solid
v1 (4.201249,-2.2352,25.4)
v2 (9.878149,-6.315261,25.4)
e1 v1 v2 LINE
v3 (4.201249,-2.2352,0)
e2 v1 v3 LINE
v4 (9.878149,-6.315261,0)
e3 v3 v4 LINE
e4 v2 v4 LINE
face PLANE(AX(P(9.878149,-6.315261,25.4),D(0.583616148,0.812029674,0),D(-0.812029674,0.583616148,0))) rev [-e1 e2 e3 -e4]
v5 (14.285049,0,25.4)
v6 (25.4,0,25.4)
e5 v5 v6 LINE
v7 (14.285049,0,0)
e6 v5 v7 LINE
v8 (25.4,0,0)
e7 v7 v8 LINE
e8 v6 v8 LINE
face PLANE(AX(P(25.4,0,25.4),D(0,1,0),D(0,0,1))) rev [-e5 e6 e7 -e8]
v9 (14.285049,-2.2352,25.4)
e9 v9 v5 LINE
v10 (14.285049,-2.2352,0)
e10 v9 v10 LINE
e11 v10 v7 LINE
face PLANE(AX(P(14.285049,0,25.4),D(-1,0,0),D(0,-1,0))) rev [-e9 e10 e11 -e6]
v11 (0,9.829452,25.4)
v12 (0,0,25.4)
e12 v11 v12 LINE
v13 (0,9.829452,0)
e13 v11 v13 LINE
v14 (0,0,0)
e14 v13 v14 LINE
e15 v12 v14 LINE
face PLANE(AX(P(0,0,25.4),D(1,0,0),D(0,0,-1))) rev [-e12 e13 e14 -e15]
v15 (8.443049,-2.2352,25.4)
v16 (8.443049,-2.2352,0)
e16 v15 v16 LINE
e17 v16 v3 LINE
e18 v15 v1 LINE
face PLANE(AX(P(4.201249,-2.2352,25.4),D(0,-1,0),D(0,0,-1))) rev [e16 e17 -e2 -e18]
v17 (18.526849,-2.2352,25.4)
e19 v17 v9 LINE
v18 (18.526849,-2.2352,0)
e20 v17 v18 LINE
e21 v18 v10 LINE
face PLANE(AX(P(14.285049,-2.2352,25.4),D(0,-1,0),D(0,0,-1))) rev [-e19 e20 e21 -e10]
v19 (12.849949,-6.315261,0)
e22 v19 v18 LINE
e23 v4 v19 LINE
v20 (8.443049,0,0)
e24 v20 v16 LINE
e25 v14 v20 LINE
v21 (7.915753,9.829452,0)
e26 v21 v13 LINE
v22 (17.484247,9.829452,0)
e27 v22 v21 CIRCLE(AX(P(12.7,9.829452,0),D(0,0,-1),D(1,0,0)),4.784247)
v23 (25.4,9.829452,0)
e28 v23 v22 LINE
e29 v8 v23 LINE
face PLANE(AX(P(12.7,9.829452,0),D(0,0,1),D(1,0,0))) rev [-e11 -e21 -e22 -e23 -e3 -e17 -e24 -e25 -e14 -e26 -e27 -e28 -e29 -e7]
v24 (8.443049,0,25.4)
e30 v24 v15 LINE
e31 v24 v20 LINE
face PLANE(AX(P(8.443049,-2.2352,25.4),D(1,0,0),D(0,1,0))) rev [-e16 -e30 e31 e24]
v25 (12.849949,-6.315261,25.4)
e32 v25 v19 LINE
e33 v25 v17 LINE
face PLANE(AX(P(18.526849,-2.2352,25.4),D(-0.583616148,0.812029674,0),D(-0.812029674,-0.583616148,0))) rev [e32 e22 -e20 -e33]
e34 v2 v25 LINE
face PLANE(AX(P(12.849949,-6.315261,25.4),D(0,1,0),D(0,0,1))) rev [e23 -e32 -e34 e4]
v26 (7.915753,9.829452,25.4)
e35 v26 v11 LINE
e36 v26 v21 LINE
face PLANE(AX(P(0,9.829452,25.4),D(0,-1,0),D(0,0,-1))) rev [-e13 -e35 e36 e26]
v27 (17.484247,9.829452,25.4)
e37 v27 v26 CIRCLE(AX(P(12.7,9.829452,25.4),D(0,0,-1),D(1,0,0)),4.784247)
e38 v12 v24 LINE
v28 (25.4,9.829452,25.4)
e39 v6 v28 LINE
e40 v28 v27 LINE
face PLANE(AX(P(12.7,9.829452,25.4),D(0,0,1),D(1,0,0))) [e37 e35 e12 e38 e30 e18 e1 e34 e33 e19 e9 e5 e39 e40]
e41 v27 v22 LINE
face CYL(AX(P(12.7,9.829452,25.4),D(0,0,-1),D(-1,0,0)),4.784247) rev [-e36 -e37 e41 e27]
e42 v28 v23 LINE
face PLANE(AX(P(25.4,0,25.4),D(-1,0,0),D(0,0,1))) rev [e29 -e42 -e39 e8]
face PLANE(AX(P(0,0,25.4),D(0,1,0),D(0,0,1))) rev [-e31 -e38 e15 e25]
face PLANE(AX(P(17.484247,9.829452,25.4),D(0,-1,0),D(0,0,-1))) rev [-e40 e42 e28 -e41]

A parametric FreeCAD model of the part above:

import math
import FreeCAD as App
import Part
import Sketcher

V = App.Vector
Q = App.Units.Quantity

doc = App.newDocument("Part")
params = doc.addObject("Spreadsheet::Sheet", "Params")
for row, (alias, value) in enumerate([
    ("sketch1_width", "0.167 in"),
    ("sketch1_width2", "0.117 in"),
    ("sketch1_height", "0.088 in"),
    ("pad1_length", "1 in"),
], start=1):
    params.set(f"A{row}", alias)
    params.set(f"B{row}", "=" + value)
    params.setAlias(f"B{row}", alias)

body = doc.addObject("PartDesign::Body", "Body")

sketch1 = body.newObject("Sketcher::SketchObject", "Sketch")
sketch1.AttachmentSupport = (doc.getObject("XY_Plane"), [""])
sketch1.MapMode = "FlatFace"
sketch1.addGeometry(Part.LineSegment(V(0, 0, 0), V(8.4, 0, 0)), False)
sketch1.addGeometry(Part.LineSegment(V(8.4, 0, 0), V(8.4, -2.2, 0)), False)
sketch1.addGeometry(Part.LineSegment(V(8.4, -2.2, 0), V(4.2, -2.2, 0)), False)
sketch1.addGeometry(Part.LineSegment(V(4.2, -2.2, 0), V(9.9, -6.3, 0)), False)
sketch1.addGeometry(Part.LineSegment(V(9.9, -6.3, 0), V(12.8, -6.3, 0)), False)
sketch1.addGeometry(Part.LineSegment(V(12.8, -6.3, 0), V(18.5, -2.2, 0)), False)
sketch1.addGeometry(Part.LineSegment(V(18.5, -2.2, 0), V(14.3, -2.2, 0)), False)
sketch1.addGeometry(Part.LineSegment(V(14.3, -2.2, 0), V(14.3, 0, 0)), False)
sketch1.addGeometry(Part.LineSegment(V(14.3, 0, 0), V(25.4, 0, 0)), False)
sketch1.addGeometry(Part.LineSegment(V(25.4, 0, 0), V(25.4, 9.8, 0)), False)
sketch1.addGeometry(Part.LineSegment(V(25.4, 9.8, 0), V(17.5, 9.8, 0)), False)
sketch1.addGeometry(Part.ArcOfCircle(Part.Circle(V(12.7, 9.8, 0), V(0, 0, 1), 4.8), math.radians(180), math.radians(360)), False)
sketch1.addGeometry(Part.LineSegment(V(7.9, 9.8, 0), V(0, 9.8, 0)), False)
sketch1.addGeometry(Part.LineSegment(V(0, 9.8, 0), V(0, 0, 0)), False)
sketch1.addConstraint(Sketcher.Constraint("Coincident", 0, 2, 1, 1))
sketch1.addConstraint(Sketcher.Constraint("Coincident", 1, 2, 2, 1))
sketch1.addConstraint(Sketcher.Constraint("Coincident", 2, 2, 3, 1))
sketch1.addConstraint(Sketcher.Constraint("Coincident", 3, 2, 4, 1))
sketch1.addConstraint(Sketcher.Constraint("Coincident", 4, 2, 5, 1))
sketch1.addConstraint(Sketcher.Constraint("Coincident", 5, 2, 6, 1))
sketch1.addConstraint(Sketcher.Constraint("Coincident", 6, 2, 7, 1))
sketch1.addConstraint(Sketcher.Constraint("Coincident", 7, 2, 8, 1))
sketch1.addConstraint(Sketcher.Constraint("Coincident", 8, 2, 9, 1))
sketch1.addConstraint(Sketcher.Constraint("Coincident", 9, 2, 10, 1))
sketch1.addConstraint(Sketcher.Constraint("Coincident", 10, 2, 11, 2))
sketch1.addConstraint(Sketcher.Constraint("Coincident", 11, 1, 12, 1))
sketch1.addConstraint(Sketcher.Constraint("Coincident", 12, 2, 13, 1))
sketch1.addConstraint(Sketcher.Constraint("Coincident", 13, 2, 0, 1))
sketch1.addConstraint(Sketcher.Constraint("Horizontal", 0))
sketch1.addConstraint(Sketcher.Constraint("Vertical", 1))
sketch1.addConstraint(Sketcher.Constraint("Horizontal", 2))
sketch1.addConstraint(Sketcher.Constraint("Horizontal", 4))
sketch1.addConstraint(Sketcher.Constraint("Horizontal", 6))
sketch1.addConstraint(Sketcher.Constraint("Vertical", 7))
sketch1.addConstraint(Sketcher.Constraint("Horizontal", 8))
sketch1.addConstraint(Sketcher.Constraint("Vertical", 9))
sketch1.addConstraint(Sketcher.Constraint("Horizontal", 10))
sketch1.addConstraint(Sketcher.Constraint("Horizontal", 12))
sketch1.addConstraint(Sketcher.Constraint("Vertical", 13))
sketch1.addConstraint(Sketcher.Constraint("Coincident", 13, 2, -1, 1))
sketch1.addConstraint(Sketcher.Constraint("PointOnObject", 7, 2, -1))
sketch1.addConstraint(Sketcher.Constraint("Horizontal", 2, 2, 5, 2))
sketch1.addConstraint(Sketcher.Constraint("Horizontal", 11, 3, 9, 2))
sketch1.addConstraint(Sketcher.Constraint("Horizontal", 10, 2, 11, 1))
sketch1.addConstraint(Sketcher.Constraint("Equal", 2, 6))
sketch1.addConstraint(Sketcher.Constraint("Equal", 10, 12))
sketch1.addConstraint(Sketcher.Constraint("Equal", 3, 5))
sketch1.addConstraint(Sketcher.Constraint("DistanceX", -1, 1, 8, 2, Q("1 in")))
sketch1.addConstraint(Sketcher.Constraint("DistanceX", 2, 2, 2, 1, Q("0.167 in")))
sketch1.addConstraint(Sketcher.Constraint("DistanceX", 4, 1, 4, 2, Q("0.117 in")))
sketch1.addConstraint(Sketcher.Constraint("DistanceY", 1, 2, 1, 1, Q("0.088 in")))
sketch1.addConstraint(Sketcher.Constraint("DistanceX", 1, 2, 6, 2, Q("0.23 in")))
sketch1.addConstraint(Sketcher.Constraint("Radius", 11, Q("4.784247 mm")))
sketch1.addConstraint(Sketcher.Constraint("Distance", 3, Q("6.991001 mm")))
sketch1.addConstraint(Sketcher.Constraint("DistanceX", 0, 1, 0, 2, Q("8.443049 mm")))
sketch1.addConstraint(Sketcher.Constraint("DistanceY", 9, 1, 9, 2, Q("9.829452 mm")))
sketch1.setExpression("Constraints[34]", "Params.sketch1_width")
sketch1.setExpression("Constraints[35]", "Params.sketch1_width2")
sketch1.setExpression("Constraints[36]", "Params.sketch1_height")
pad1 = body.newObject("PartDesign::Pad", "Pad")
pad1.Profile = sketch1
pad1.setExpression("Length", "Params.pad1_length")

doc.recompute()
